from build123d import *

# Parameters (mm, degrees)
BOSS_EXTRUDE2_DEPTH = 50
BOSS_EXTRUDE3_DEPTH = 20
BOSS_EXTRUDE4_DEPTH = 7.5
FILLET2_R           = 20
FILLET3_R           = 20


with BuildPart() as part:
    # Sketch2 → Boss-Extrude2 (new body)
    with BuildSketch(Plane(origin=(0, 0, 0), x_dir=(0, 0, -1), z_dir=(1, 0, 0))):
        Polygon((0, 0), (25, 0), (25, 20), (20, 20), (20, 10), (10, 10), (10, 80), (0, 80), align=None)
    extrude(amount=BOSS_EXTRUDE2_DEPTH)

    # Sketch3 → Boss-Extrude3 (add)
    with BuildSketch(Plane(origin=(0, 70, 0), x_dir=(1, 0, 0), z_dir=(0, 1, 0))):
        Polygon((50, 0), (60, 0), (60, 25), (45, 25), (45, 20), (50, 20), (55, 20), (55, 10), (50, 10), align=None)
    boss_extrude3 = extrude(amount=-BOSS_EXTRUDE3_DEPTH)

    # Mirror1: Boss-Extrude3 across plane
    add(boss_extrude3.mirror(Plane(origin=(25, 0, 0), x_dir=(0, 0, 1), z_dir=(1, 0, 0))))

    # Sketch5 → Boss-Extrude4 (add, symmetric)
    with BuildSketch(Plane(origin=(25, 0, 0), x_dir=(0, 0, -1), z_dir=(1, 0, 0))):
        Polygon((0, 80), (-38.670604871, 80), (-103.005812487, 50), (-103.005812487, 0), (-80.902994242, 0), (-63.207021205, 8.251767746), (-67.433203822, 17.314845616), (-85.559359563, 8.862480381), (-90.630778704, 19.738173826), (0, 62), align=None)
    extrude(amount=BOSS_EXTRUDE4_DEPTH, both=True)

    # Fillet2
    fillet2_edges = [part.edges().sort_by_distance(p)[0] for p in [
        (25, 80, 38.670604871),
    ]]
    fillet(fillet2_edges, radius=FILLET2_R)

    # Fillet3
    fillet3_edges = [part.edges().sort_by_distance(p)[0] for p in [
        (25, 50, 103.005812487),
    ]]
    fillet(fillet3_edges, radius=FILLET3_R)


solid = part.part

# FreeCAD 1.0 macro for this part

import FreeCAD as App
import Part
import Sketcher

V = App.Vector
Q = App.Units.Quantity


def edges_at(feature, points):
    """Names of the edges that pass closest to the given points."""
    edges = feature.Shape.Edges
    near = lambda p: min(range(len(edges)), key=lambda i: edges[i].distToShape(Part.Vertex(*p))[0])
    return sorted({f"Edge{near(p) + 1}" for p in points})


def add_polygon(sketch, points):
    """Adds a closed chain of lines whose ends are joined by coincident constraints."""
    first, n = sketch.GeometryCount, len(points)
    for a, b in zip(points, points[1:] + points[:1]):
        sketch.addGeometry(Part.LineSegment(App.Vector(*a, 0), App.Vector(*b, 0)), False)
    for i in range(n):
        sketch.addConstraint(Sketcher.Constraint("Coincident", first + i, 2, first + (i + 1) % n, 1))

doc = App.newDocument("Part")
body = doc.addObject("PartDesign::Body", "Body")

sketch1 = body.newObject("Sketcher::SketchObject", "Sketch")
sketch1.AttachmentSupport = (doc.getObject("YZ_Plane"), [""])
sketch1.MapMode = "FlatFace"
add_polygon(sketch1, [(0, 0), (0, -25), (20, -25), (20, -20), (10, -20), (10, -10), (80, -10), (80, 0)])
sketch1.addConstraint([
    Sketcher.Constraint("Vertical", 0),
    Sketcher.Constraint("Horizontal", 1),
    Sketcher.Constraint("Vertical", 2),
    Sketcher.Constraint("Horizontal", 3),
    Sketcher.Constraint("Vertical", 4),
    Sketcher.Constraint("Horizontal", 5),
    Sketcher.Constraint("Vertical", 6),
    Sketcher.Constraint("Horizontal", 7),
    Sketcher.Constraint("Coincident", 7, 2, -1, 1),
    Sketcher.Constraint("Equal", 3, 4),
    Sketcher.Constraint("Equal", 4, 6),
    Sketcher.Constraint("DistanceX", 1, 1, 1, 2, 20.0),
    Sketcher.Constraint("DistanceX", 3, 2, 3, 1, 10.0),
    Sketcher.Constraint("DistanceX", 5, 1, 5, 2, 70.0),
    Sketcher.Constraint("DistanceY", 0, 2, 0, 1, 25.0),
])
pad1 = body.newObject("PartDesign::Pad", "Pad")
pad1.Profile = sketch1
pad1.Length = 50

sketch2 = body.newObject("Sketcher::SketchObject", "Sketch001")
sketch2.AttachmentSupport = (doc.getObject("XZ_Plane"), [""])
sketch2.MapMode = "FlatFace"
sketch2.AttachmentOffset = App.Placement(V(0, 0, -70), App.Rotation())
add_polygon(sketch2, [(50, 0), (60, 0), (60, -25), (45, -25), (45, -20), (55, -20), (55, -10), (50, -10)])
sketch2.addConstraint([
    Sketcher.Constraint("Horizontal", 0),
    Sketcher.Constraint("Vertical", 1),
    Sketcher.Constraint("Horizontal", 2),
    Sketcher.Constraint("Vertical", 3),
    Sketcher.Constraint("Horizontal", 4),
    Sketcher.Constraint("Vertical", 5),
    Sketcher.Constraint("Horizontal", 6),
    Sketcher.Constraint("Vertical", 7),
    Sketcher.Constraint("PointOnObject", 0, 2, -1),
    Sketcher.Constraint("Equal", 0, 4),
    Sketcher.Constraint("Equal", 6, 3),
    Sketcher.Constraint("Equal", 4, 5),
    Sketcher.Constraint("Equal", 5, 7),
    Sketcher.Constraint("DistanceX", 0, 1, 0, 2, 10.0),
    Sketcher.Constraint("DistanceX", 2, 2, 2, 1, 15.0),
    Sketcher.Constraint("DistanceX", -1, 1, 0, 2, 60.0),
])
pad2 = body.newObject("PartDesign::Pad", "Pad001")
pad2.Profile = sketch2
pad2.Length = 20
doc.recompute()

datumplane = body.newObject("PartDesign::Plane", "DatumPlane")
datumplane.AttachmentSupport = (doc.getObject("YZ_Plane"), [""])
datumplane.MapMode = "FlatFace"
datumplane.AttachmentOffset = App.Placement(V(0, 0, 25), App.Rotation())
mirrored = body.newObject("PartDesign::Mirrored", "Mirrored")
mirrored.Originals = [pad2]
mirrored.MirrorPlane = (datumplane, [""])
body.Tip = mirrored

sketch3 = body.newObject("Sketcher::SketchObject", "Sketch002")
sketch3.AttachmentSupport = (doc.getObject("YZ_Plane"), [""])
sketch3.MapMode = "FlatFace"
sketch3.AttachmentOffset = App.Placement(V(0, 0, 25), App.Rotation())
add_polygon(sketch3, [(80, 0), (80, 39), (50, 103), (0, 103), (0, 81), (8, 63), (17, 67), (9, 86), (20, 91), (62, 0)])
sketch3.addConstraint([
    Sketcher.Constraint("Vertical", 0),
    Sketcher.Constraint("Horizontal", 2),
    Sketcher.Constraint("Vertical", 3),
    Sketcher.Constraint("Horizontal", 9),
    Sketcher.Constraint("PointOnObject", 2, 2, -2),
    Sketcher.Constraint("PointOnObject", 8, 2, -1),
    Sketcher.Constraint("Parallel", 1, 4),
    Sketcher.Constraint("Perpendicular", 4, 5),
    Sketcher.Constraint("Perpendicular", 5, 6),
    Sketcher.Constraint("Perpendicular", 6, 7),
    Sketcher.Constraint("Perpendicular", 7, 8),
    Sketcher.Constraint("DistanceX", 2, 2, 2, 1, 50.0),
    Sketcher.Constraint("DistanceX", 9, 1, 9, 2, 18.0),
    Sketcher.Constraint("Angle", 1, Q("115 deg")),
    Sketcher.Constraint("Distance", 5, 10.0),
    Sketcher.Constraint("Distance", 6, 20.0),
    Sketcher.Constraint("Distance", 7, 12.0),
    Sketcher.Constraint("Distance", 8, 100.0),
    Sketcher.Constraint("DistanceX", -1, 1, 0, 2, 80.0),
    Sketcher.Constraint("DistanceY", 3, 2, 3, 1, 22.102818),
])
pad3 = body.newObject("PartDesign::Pad", "Pad002")
pad3.Profile = sketch3
pad3.Length = 15
pad3.Midplane = True
doc.recompute()

fillet = body.newObject("PartDesign::Fillet", "Fillet")
fillet.Base = (pad3, edges_at(pad3, [(25, 80, 38.671)]))
fillet.Radius = 20
doc.recompute()

fillet2 = body.newObject("PartDesign::Fillet", "Fillet001")
fillet2.Base = (fillet, edges_at(fillet, [(25, 50, 103.006)]))
fillet2.Radius = 20

doc.recompute()
